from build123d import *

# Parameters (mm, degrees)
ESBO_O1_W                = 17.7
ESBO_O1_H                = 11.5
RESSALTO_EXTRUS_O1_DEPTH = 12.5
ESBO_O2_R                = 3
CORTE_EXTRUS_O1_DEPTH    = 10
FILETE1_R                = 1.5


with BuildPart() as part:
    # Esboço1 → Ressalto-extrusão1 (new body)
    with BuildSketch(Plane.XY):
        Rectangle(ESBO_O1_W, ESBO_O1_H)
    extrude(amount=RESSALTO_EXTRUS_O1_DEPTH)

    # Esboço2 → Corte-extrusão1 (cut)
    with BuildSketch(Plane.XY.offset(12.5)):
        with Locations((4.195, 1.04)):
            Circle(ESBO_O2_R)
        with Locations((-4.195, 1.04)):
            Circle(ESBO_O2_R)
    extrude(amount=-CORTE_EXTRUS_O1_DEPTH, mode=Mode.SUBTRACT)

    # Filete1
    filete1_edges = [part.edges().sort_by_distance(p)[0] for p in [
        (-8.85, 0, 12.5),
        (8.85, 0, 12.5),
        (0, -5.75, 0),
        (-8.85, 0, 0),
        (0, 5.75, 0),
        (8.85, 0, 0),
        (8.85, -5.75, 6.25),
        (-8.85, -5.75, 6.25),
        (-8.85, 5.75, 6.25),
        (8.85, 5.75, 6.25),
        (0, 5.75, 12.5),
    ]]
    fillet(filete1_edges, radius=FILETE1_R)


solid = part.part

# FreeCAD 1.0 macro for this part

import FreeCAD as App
import Part
import Sketcher


def edges_at(feature, points):
    """Names of the edges that pass closest to the given points."""
    edges = feature.Shape.Edges
    near = lambda p: min(range(len(edges)), key=lambda i: edges[i].distToShape(Part.Vertex(*p))[0])
    return sorted({f"Edge{near(p) + 1}" for p in points})

doc = App.newDocument("Part")
params = doc.addObject("Spreadsheet::Sheet", "Params")
for row, (alias, value) in enumerate([
    ("sketch1_width", "17.7 mm"),
    ("sketch1_height", "11.5 mm"),
    ("pad1_length", "12.5 mm"),
    ("sketch2_diameter", "6 mm"),
    ("pocket1_length", "10 mm"),
    ("fillet_radius", "1.5 mm"),
], start=1):
    params.set(f"A{row}", alias)
    params.set(f"B{row}", "=" + value)
    params.setAlias(f"B{row}", alias)

body = doc.addObject("PartDesign::Body", "Body")

# Sketch on XY plane
sketch1 = body.newObject("Sketcher::SketchObject", "Sketch")
sketch1.AttachmentSupport = (doc.getObject("XY_Plane"), [""])
sketch1.MapMode = "FlatFace"
sketch1.addGeometry([
    Part.LineSegment(App.Vector(-8.85, 5.75, 0), App.Vector(-8.85, -5.75, 0)),
    Part.LineSegment(App.Vector(-8.85, -5.75, 0), App.Vector(8.85, -5.75, 0)),
    Part.LineSegment(App.Vector(8.85, -5.75, 0), App.Vector(8.85, 5.75, 0)),
    Part.LineSegment(App.Vector(8.85, 5.75, 0), App.Vector(-8.85, 5.75, 0)),
], False)
sketch1.addConstraint([
    Sketcher.Constraint("Coincident", 0, 2, 1, 1),
    Sketcher.Constraint("Coincident", 1, 2, 2, 1),
    Sketcher.Constraint("Coincident", 2, 2, 3, 1),
    Sketcher.Constraint("Coincident", 3, 2, 0, 1),
    Sketcher.Constraint("Vertical", 0),
    Sketcher.Constraint("Horizontal", 1),
    Sketcher.Constraint("Vertical", 2),
    Sketcher.Constraint("Horizontal", 3),
    Sketcher.Constraint("Symmetric", 0, 2, 2, 2, -1, 1),
    Sketcher.Constraint("DistanceX", 1, 1, 1, 2, 17.7),
    Sketcher.Constraint("DistanceY", 0, 2, 0, 1, 11.5),
])
sketch1.setExpression("Constraints[9]", "Params.sketch1_width")
sketch1.setExpression("Constraints[10]", "Params.sketch1_height")
pad1 = body.newObject("PartDesign::Pad", "Pad")
pad1.Profile = sketch1
pad1.setExpression("Length", "Params.pad1_length")

# Sketch on XY plane
sketch2 = body.newObject("Sketcher::SketchObject", "Sketch001")
sketch2.AttachmentSupport = (doc.getObject("XY_Plane"), [""])
sketch2.MapMode = "FlatFace"
sketch2.AttachmentOffset = App.Placement(App.Vector(0, 0, 12.5), App.Rotation())
sketch2.addGeometry([
    Part.Circle(App.Vector(4.195, 1.04, 0), App.Vector(0, 0, 1), 3),
    Part.Circle(App.Vector(-4.195, 1.04, 0), App.Vector(0, 0, 1), 3),
], False)
sketch2.addConstraint([
    Sketcher.Constraint("Equal", 0, 1),
    Sketcher.Constraint("Symmetric", 0, 3, 1, 3, -2),
    Sketcher.Constraint("Diameter", 0, 6.0),
    Sketcher.Constraint("DistanceY", -1, 1, 0, 3, 1.04),
    Sketcher.Constraint("DistanceX", 1, 3, 0, 3, 8.39),
])
sketch2.setExpression("Constraints[2]", "Params.sketch2_diameter")
pocket1 = body.newObject("PartDesign::Pocket", "Pocket")
pocket1.Profile = sketch2
pocket1.setExpression("Length", "Params.pocket1_length")
doc.recompute()

fillet = body.newObject("PartDesign::Fillet", "Fillet")
fillet.Base = (pocket1, edges_at(pocket1, [
    (-8.85, 0, 12.5),
    (8.85, 0, 12.5),
    (0, -5.75, 0),
    (-8.85, 0, 0),
    (0, 5.75, 0),
    (8.85, 0, 0),
    (8.85, -5.75, 6.25),
    (-8.85, -5.75, 6.25),
    (-8.85, 5.75, 6.25),
    (8.85, 5.75, 6.25),
    (0, 5.75, 12.5),
]))
fillet.setExpression("Radius", "Params.fillet_radius")

doc.recompute()
